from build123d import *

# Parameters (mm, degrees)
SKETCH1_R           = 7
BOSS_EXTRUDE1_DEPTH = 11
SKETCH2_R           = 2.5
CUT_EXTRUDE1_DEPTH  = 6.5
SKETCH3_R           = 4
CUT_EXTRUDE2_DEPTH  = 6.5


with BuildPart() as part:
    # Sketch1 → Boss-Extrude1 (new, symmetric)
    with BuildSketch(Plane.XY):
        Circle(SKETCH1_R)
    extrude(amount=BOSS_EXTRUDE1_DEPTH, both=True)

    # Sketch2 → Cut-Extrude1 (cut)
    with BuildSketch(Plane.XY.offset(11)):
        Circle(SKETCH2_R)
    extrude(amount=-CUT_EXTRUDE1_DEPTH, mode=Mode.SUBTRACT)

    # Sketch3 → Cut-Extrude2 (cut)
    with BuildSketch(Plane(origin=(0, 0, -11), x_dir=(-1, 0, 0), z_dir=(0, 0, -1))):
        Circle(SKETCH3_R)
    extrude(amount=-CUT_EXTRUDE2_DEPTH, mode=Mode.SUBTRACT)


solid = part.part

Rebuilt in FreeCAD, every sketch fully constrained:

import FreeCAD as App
import Part
import Sketcher
from FreeCAD import Vector
Q = App.Units.Quantity

doc = App.newDocument("Part")
body = doc.addObject("PartDesign::Body", "Body")

# Sketch on XY plane
sketch1 = body.newObject("Sketcher::SketchObject", "Sketch")
sketch1.AttachmentSupport = (doc.getObject("XY_Plane"), [""])
sketch1.MapMode = "FlatFace"
sketch1.addGeometry(Part.Circle(Vector(0, 0, 0), Vector(0, 0, 1), 7), False)
sketch1.addConstraint([
    Sketcher.Constraint("Coincident", 0, 3, -1, 1),
    Sketcher.Constraint("Diameter", 0, Q("14 mm")),
])
pad1 = body.newObject("PartDesign::Pad", "Pad")
pad1.Profile = sketch1
pad1.Length = 22
pad1.Midplane = True

# Sketch on XY plane
sketch2 = body.newObject("Sketcher::SketchObject", "Sketch001")
sketch2.AttachmentSupport = (doc.getObject("XY_Plane"), [""])
sketch2.MapMode = "FlatFace"
sketch2.AttachmentOffset = App.Placement(Vector(0, 0, 11), App.Rotation())
sketch2.addGeometry(Part.Circle(Vector(0, 0, 0), Vector(0, 0, 1), 2.5), False)
sketch2.addConstraint([
    Sketcher.Constraint("Coincident", 0, 3, -1, 1),
    Sketcher.Constraint("Diameter", 0, Q("5 mm")),
])
pocket1 = body.newObject("PartDesign::Pocket", "Pocket")
pocket1.Profile = sketch2
pocket1.Length = 6.5

# Sketch on XY plane
sketch3 = body.newObject("Sketcher::SketchObject", "Sketch002")
sketch3.AttachmentSupport = (doc.getObject("XY_Plane"), [""])
sketch3.MapMode = "FlatFace"
sketch3.AttachmentOffset = App.Placement(Vector(0, 0, -11), App.Rotation())
sketch3.addGeometry(Part.Circle(Vector(0, 0, 0), Vector(0, 0, 1), 4), False)
sketch3.addConstraint([
    Sketcher.Constraint("Coincident", 0, 3, -1, 1),
    Sketcher.Constraint("Diameter", 0, Q("8 mm")),
])
pocket2 = body.newObject("PartDesign::Pocket", "Pocket001")
pocket2.Profile = sketch3
pocket2.Length = 6.5
pocket2.Reversed = True

doc.recompute()
